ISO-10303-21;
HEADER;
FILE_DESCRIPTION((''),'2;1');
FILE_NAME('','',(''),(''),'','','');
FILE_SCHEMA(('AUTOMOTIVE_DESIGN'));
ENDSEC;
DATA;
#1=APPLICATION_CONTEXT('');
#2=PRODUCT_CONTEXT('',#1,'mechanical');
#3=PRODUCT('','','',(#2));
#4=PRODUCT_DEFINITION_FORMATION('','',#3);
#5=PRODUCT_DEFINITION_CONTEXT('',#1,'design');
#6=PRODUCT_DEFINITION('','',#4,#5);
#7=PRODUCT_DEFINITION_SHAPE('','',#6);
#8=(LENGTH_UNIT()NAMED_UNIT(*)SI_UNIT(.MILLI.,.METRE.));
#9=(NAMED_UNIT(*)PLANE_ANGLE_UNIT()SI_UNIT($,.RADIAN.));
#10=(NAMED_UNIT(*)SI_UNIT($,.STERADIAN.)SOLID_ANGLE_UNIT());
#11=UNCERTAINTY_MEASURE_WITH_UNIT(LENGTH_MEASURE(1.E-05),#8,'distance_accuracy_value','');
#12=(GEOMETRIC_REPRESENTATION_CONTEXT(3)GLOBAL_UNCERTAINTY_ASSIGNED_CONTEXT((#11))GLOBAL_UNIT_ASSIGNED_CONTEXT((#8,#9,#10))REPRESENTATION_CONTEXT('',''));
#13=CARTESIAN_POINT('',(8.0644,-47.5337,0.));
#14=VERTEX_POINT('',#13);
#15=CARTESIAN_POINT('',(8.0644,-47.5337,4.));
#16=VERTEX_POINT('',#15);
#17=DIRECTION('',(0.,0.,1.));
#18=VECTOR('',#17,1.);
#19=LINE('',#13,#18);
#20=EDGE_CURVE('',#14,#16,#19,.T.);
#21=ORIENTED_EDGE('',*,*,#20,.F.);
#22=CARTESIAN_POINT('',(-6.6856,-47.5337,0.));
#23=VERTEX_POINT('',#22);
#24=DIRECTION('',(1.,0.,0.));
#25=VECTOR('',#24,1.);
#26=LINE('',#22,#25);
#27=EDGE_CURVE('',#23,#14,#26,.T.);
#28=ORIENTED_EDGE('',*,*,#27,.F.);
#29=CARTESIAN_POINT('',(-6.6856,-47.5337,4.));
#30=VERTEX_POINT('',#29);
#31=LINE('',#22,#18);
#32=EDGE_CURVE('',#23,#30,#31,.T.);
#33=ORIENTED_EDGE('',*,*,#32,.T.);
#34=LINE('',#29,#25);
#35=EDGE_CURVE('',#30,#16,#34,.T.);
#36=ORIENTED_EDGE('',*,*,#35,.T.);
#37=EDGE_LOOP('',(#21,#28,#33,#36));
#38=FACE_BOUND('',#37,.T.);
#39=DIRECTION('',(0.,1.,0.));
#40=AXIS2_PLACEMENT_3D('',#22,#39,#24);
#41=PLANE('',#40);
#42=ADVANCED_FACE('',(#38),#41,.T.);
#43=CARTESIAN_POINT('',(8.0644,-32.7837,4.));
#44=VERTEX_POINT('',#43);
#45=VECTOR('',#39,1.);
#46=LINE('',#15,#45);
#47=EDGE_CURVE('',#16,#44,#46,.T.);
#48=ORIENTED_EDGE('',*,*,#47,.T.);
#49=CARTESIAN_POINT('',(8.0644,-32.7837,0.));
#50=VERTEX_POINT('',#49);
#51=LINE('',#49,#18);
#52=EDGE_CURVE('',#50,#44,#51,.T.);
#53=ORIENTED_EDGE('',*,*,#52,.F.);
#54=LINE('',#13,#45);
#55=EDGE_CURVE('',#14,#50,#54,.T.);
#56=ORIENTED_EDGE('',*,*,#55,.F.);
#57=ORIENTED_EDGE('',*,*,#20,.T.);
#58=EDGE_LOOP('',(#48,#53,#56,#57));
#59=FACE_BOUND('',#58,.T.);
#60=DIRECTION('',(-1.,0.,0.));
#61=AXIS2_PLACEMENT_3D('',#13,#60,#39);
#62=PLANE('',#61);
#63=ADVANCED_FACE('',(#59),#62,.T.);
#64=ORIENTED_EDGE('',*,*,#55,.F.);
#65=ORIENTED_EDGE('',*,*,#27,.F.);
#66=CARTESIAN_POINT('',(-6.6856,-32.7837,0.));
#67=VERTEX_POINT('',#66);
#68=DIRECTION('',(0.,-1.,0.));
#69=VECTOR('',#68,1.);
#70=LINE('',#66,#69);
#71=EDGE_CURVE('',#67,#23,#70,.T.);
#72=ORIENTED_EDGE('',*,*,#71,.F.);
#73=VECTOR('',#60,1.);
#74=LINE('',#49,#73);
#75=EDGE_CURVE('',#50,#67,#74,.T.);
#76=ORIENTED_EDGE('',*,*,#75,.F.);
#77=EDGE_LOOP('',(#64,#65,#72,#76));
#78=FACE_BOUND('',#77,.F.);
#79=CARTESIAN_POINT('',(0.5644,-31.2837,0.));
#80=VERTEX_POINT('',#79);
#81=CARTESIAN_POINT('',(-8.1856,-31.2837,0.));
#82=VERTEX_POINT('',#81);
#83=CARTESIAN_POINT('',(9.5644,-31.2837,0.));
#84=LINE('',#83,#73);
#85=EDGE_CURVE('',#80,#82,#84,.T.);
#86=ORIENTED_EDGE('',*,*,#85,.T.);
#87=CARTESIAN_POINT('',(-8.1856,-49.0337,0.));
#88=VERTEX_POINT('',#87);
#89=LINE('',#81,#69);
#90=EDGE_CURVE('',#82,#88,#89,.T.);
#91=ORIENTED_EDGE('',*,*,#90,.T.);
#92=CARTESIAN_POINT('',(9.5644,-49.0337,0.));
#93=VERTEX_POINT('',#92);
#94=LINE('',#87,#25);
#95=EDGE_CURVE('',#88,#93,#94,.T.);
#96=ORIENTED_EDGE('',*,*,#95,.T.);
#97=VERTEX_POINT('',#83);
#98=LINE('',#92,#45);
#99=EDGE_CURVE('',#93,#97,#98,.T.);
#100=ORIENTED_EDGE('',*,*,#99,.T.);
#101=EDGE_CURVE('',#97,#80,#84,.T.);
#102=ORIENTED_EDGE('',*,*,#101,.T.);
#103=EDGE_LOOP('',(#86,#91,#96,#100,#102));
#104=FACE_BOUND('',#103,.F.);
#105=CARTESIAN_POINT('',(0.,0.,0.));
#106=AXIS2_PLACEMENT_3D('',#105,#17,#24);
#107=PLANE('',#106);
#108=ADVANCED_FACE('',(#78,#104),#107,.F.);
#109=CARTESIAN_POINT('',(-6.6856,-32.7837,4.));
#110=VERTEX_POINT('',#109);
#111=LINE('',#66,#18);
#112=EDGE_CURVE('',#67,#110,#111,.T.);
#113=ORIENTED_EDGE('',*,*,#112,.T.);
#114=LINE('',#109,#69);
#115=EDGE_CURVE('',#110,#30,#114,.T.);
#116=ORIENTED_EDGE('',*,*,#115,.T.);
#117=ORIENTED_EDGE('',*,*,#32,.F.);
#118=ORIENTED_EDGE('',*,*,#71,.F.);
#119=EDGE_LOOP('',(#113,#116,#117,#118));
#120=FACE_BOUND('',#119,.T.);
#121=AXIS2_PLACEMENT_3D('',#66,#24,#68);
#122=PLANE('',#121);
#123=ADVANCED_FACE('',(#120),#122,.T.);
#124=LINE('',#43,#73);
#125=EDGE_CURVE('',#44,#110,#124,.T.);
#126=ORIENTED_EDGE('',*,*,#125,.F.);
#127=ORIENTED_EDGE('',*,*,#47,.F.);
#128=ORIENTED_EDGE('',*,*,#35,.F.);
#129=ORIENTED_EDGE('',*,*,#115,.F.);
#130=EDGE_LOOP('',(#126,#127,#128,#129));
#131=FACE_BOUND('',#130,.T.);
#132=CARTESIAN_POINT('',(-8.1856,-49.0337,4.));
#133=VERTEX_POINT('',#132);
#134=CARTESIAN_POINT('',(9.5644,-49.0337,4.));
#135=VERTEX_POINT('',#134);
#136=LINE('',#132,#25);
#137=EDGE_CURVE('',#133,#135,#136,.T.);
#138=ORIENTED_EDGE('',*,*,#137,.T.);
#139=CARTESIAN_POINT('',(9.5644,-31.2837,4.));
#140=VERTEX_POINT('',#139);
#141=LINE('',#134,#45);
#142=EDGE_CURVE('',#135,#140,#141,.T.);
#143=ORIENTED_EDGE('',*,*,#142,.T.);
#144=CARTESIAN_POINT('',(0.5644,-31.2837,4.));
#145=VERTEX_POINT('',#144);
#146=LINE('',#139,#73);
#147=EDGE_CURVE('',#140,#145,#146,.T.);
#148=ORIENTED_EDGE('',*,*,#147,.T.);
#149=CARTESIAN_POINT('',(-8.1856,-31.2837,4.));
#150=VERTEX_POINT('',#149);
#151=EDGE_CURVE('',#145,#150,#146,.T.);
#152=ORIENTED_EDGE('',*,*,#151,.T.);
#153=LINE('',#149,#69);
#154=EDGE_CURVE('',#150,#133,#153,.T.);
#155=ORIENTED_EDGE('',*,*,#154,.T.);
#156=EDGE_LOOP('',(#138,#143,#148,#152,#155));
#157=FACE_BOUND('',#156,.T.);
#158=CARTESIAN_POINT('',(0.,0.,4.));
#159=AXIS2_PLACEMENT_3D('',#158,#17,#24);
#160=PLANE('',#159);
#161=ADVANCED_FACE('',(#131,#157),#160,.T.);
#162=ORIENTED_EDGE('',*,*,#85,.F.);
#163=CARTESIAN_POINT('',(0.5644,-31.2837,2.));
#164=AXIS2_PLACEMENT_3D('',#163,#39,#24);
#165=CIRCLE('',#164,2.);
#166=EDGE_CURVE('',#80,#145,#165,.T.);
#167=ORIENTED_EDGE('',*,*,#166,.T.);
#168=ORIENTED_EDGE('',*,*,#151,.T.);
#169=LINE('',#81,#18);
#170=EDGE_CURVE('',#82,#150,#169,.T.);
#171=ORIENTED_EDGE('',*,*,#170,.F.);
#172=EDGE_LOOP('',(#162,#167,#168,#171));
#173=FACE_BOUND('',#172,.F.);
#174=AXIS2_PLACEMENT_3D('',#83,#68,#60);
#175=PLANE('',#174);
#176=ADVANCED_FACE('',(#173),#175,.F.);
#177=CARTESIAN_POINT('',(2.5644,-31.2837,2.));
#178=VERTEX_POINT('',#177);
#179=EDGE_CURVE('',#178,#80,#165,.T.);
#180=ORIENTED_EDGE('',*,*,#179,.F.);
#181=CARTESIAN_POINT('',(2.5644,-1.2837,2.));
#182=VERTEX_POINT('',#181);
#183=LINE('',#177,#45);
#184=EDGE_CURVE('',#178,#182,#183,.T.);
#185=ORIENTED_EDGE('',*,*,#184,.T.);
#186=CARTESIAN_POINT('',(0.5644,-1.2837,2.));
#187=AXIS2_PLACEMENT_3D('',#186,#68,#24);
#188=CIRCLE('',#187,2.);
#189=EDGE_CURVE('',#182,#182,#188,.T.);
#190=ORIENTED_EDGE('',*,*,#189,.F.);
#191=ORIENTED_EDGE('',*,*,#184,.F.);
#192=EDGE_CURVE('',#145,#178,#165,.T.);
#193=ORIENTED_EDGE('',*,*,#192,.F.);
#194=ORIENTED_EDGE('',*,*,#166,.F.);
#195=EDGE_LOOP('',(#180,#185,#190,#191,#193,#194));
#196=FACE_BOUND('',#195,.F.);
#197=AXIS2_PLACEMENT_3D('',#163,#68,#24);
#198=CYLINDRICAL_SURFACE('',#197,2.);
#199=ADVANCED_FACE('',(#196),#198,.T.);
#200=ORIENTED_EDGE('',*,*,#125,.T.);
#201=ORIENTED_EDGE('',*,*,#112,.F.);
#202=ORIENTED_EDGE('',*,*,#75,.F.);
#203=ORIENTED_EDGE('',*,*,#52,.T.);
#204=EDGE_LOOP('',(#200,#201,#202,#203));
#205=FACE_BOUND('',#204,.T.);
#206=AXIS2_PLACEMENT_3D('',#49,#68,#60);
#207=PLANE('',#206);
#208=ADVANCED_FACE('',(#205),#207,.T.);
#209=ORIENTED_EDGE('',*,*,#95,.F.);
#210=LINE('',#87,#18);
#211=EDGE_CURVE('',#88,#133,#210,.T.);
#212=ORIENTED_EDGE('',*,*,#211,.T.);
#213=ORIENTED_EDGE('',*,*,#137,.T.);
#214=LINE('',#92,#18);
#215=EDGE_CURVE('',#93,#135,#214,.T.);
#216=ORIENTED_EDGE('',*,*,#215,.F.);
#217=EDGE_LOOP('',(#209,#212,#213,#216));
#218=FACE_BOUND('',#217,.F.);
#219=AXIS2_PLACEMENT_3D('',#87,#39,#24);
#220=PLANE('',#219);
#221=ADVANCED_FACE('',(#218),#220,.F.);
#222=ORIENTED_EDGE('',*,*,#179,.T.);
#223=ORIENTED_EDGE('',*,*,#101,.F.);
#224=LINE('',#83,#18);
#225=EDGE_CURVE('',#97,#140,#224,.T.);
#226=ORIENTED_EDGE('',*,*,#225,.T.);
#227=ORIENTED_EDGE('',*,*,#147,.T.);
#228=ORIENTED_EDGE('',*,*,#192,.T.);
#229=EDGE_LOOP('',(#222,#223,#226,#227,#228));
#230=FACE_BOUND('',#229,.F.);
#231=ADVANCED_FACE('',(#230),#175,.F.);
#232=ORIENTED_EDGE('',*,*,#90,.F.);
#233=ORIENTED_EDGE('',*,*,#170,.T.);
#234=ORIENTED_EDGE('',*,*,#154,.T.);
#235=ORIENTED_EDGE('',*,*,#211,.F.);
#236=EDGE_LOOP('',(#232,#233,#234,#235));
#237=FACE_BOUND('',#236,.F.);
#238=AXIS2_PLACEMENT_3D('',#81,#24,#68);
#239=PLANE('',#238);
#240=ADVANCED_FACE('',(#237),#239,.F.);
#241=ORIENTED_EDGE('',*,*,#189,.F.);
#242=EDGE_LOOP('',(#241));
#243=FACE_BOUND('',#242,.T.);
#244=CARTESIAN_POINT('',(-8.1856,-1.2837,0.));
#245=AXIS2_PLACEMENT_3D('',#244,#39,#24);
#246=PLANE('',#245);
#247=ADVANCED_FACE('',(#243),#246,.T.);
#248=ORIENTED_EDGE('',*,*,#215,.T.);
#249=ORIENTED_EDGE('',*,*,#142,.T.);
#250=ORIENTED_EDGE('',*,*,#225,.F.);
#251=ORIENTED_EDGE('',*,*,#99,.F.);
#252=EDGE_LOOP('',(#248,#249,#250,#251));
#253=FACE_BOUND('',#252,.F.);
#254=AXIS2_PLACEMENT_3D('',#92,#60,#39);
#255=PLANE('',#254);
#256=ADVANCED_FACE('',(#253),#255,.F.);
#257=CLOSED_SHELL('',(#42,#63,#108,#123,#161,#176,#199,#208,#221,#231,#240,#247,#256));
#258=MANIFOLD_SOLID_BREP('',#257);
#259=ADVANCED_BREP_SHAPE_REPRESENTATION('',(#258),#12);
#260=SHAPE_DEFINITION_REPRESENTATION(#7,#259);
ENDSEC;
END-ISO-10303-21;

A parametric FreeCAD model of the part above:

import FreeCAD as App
import Part
import Sketcher
Q = App.Units.Quantity


def add_polygon(sketch, points):
    """Adds a closed chain of lines whose ends are joined by coincident constraints."""
    first, n = sketch.GeometryCount, len(points)
    for a, b in zip(points, points[1:] + points[:1]):
        sketch.addGeometry(Part.LineSegment(App.Vector(*a, 0), App.Vector(*b, 0)), False)
    for i in range(n):
        sketch.addConstraint(Sketcher.Constraint("Coincident", first + i, 2, first + (i + 1) % n, 1))

doc = App.newDocument("Part")
body = doc.addObject("PartDesign::Body", "Body")

# Sketch on XY plane
sketch1 = body.newObject("Sketcher::SketchObject", "Sketch")
sketch1.AttachmentSupport = (doc.getObject("XY_Plane"), [""])
sketch1.MapMode = "FlatFace"
add_polygon(sketch1, [(9.5644, -49.0337), (9.5644, -31.2837), (-8.1856, -31.2837), (-8.1856, -49.0337)])  # lines 0-3
add_polygon(sketch1, [(-6.6856, -32.7837), (8.0644, -32.7837), (8.0644, -47.5337), (-6.6856, -47.5337)])  # lines 4-7
sketch1.addConstraint(Sketcher.Constraint("Vertical", 0))
sketch1.addConstraint(Sketcher.Constraint("Horizontal", 1))
sketch1.addConstraint(Sketcher.Constraint("Vertical", 2))
sketch1.addConstraint(Sketcher.Constraint("Horizontal", 3))
sketch1.addConstraint(Sketcher.Constraint("Horizontal", 4))
sketch1.addConstraint(Sketcher.Constraint("Vertical", 5))
sketch1.addConstraint(Sketcher.Constraint("Horizontal", 6))
sketch1.addConstraint(Sketcher.Constraint("Vertical", 7))
sketch1.addConstraint(Sketcher.Constraint("Equal", 3, 0))
sketch1.addConstraint(Sketcher.Constraint("Equal", 6, 5))
sketch1.addConstraint(Sketcher.Constraint("DistanceX", 4, 1, 4, 2, Q("14.75 mm")))
sketch1.addConstraint(Sketcher.Constraint("DistanceX", 4, 2, 0, 2, Q("1.5 mm")))
sketch1.addConstraint(Sketcher.Constraint("DistanceY", 4, 2, 0, 2, Q("1.5 mm")))
sketch1.addConstraint(Sketcher.Constraint("DistanceY", 3, 2, 5, 2, Q("1.5 mm")))
sketch1.addConstraint(Sketcher.Constraint("DistanceX", -1, 1, 0, 2, Q("9.5644 mm")))
sketch1.addConstraint(Sketcher.Constraint("DistanceY", 0, 2, -1, 1, Q("31.2837 mm")))
pad1 = body.newObject("PartDesign::Pad", "Pad")
pad1.Profile = sketch1
pad1.Length = 4

# Sketch on XZ plane
sketch2 = body.newObject("Sketcher::SketchObject", "Sketch001")
sketch2.AttachmentSupport = (doc.getObject("XZ_Plane"), [""])
sketch2.MapMode = "FlatFace"
sketch2.AttachmentOffset = App.Placement(App.Vector(0, 0, 31.2837), App.Rotation())
sketch2.addGeometry(Part.Circle(App.Vector(0.5644, 2, 0), App.Vector(0, 0, 1), 2), False)
sketch2.addConstraint(Sketcher.Constraint("Diameter", 0, Q("4 mm")))
sketch2.addConstraint(Sketcher.Constraint("DistanceY", -1, 1, 0, 3, Q("2 mm")))
sketch2.addConstraint(Sketcher.Constraint("DistanceX", -1, 1, 0, 3, Q("0.5644 mm")))
pad2 = body.newObject("PartDesign::Pad", "Pad001")
pad2.Profile = sketch2
pad2.Length = 30
pad2.Reversed = True

doc.recompute()
